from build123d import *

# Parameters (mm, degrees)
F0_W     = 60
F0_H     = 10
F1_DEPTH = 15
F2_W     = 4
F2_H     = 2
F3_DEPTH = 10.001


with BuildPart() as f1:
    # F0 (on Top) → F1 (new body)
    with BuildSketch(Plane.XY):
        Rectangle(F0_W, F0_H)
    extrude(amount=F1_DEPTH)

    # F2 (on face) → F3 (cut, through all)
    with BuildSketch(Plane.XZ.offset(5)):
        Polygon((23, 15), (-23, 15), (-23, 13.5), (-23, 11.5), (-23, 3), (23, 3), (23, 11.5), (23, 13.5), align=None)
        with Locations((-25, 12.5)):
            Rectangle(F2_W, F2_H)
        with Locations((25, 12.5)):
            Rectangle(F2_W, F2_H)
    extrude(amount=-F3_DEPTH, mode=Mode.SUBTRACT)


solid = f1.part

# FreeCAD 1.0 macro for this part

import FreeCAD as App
import Part
import Sketcher
from FreeCAD import Vector

doc = App.newDocument("Part")
body = doc.addObject("PartDesign::Body", "Body")

sketch1 = doc.addObject("Sketcher::SketchObject", "Sketch")
body.addObject(sketch1)
sketch1.AttachmentSupport = (doc.XY_Plane, [""])
sketch1.MapMode = "FlatFace"
sketch1.addGeometry([
    Part.LineSegment(Vector(-30, 5, 0), Vector(-30, -5, 0)),
    Part.LineSegment(Vector(-30, -5, 0), Vector(30, -5, 0)),
    Part.LineSegment(Vector(30, -5, 0), Vector(30, 5, 0)),
    Part.LineSegment(Vector(30, 5, 0), Vector(-30, 5, 0)),
], False)
sketch1.addConstraint([
    Sketcher.Constraint("Coincident", 0, 2, 1, 1),
    Sketcher.Constraint("Coincident", 1, 2, 2, 1),
    Sketcher.Constraint("Coincident", 2, 2, 3, 1),
    Sketcher.Constraint("Coincident", 3, 2, 0, 1),
    Sketcher.Constraint("Vertical", 0),
    Sketcher.Constraint("Horizontal", 1),
    Sketcher.Constraint("Vertical", 2),
    Sketcher.Constraint("Horizontal", 3),
    Sketcher.Constraint("Symmetric", 0, 2, 2, 2, -1, 1),
    Sketcher.Constraint("DistanceX", 1, 1, 1, 2, 60.0),
    Sketcher.Constraint("DistanceY", 0, 2, 0, 1, 10.0),
])
pad1 = doc.addObject("PartDesign::Pad", "Pad")
body.addObject(pad1)
pad1.Profile = sketch1
pad1.Length = 15

sketch2 = doc.addObject("Sketcher::SketchObject", "Sketch001")
body.addObject(sketch2)
sketch2.AttachmentSupport = (doc.XZ_Plane, [""])
sketch2.MapMode = "FlatFace"
sketch2.AttachmentOffset = App.Placement(Vector(0, 0, 5), App.Rotation())
sketch2.addGeometry([
    Part.LineSegment(Vector(23, 15, 0), Vector(-23, 15, 0)),
    Part.LineSegment(Vector(-23, 15, 0), Vector(-23, 13.5, 0)),
    Part.LineSegment(Vector(-23, 13.5, 0), Vector(-27, 13.5, 0)),
    Part.LineSegment(Vector(-27, 13.5, 0), Vector(-27, 11.5, 0)),
    Part.LineSegment(Vector(-27, 11.5, 0), Vector(-23, 11.5, 0)),
    Part.LineSegment(Vector(-23, 11.5, 0), Vector(-23, 3, 0)),
    Part.LineSegment(Vector(-23, 3, 0), Vector(23, 3, 0)),
    Part.LineSegment(Vector(23, 3, 0), Vector(23, 11.5, 0)),
    Part.LineSegment(Vector(23, 11.5, 0), Vector(27, 11.5, 0)),
    Part.LineSegment(Vector(27, 11.5, 0), Vector(27, 13.5, 0)),
    Part.LineSegment(Vector(27, 13.5, 0), Vector(23, 13.5, 0)),
    Part.LineSegment(Vector(23, 13.5, 0), Vector(23, 15, 0)),
], False)
sketch2.addConstraint([
    Sketcher.Constraint("Coincident", 0, 2, 1, 1),
    Sketcher.Constraint("Coincident", 1, 2, 2, 1),
    Sketcher.Constraint("Coincident", 2, 2, 3, 1),
    Sketcher.Constraint("Coincident", 3, 2, 4, 1),
    Sketcher.Constraint("Coincident", 4, 2, 5, 1),
    Sketcher.Constraint("Coincident", 5, 2, 6, 1),
    Sketcher.Constraint("Coincident", 6, 2, 7, 1),
    Sketcher.Constraint("Coincident", 7, 2, 8, 1),
    Sketcher.Constraint("Coincident", 8, 2, 9, 1),
    Sketcher.Constraint("Coincident", 9, 2, 10, 1),
    Sketcher.Constraint("Coincident", 10, 2, 11, 1),
    Sketcher.Constraint("Coincident", 11, 2, 0, 1),
    Sketcher.Constraint("Horizontal", 0),
    Sketcher.Constraint("Vertical", 1),
    Sketcher.Constraint("Horizontal", 2),
    Sketcher.Constraint("Vertical", 3),
    Sketcher.Constraint("Horizontal", 4),
    Sketcher.Constraint("Vertical", 5),
    Sketcher.Constraint("Horizontal", 6),
    Sketcher.Constraint("Vertical", 7),
    Sketcher.Constraint("Horizontal", 8),
    Sketcher.Constraint("Vertical", 9),
    Sketcher.Constraint("Horizontal", 10),
    Sketcher.Constraint("Vertical", 11),
    Sketcher.Constraint("Symmetric", 4, 2, 7, 2, -2),
    Sketcher.Constraint("Symmetric", 2, 2, 9, 2, -2),
    Sketcher.Constraint("Vertical", 1, 2, 4, 2),
    Sketcher.Constraint("Vertical", 7, 2, 10, 2),
    Sketcher.Constraint("DistanceX", 0, 2, 0, 1, 46.0),
    Sketcher.Constraint("DistanceX", 2, 2, 2, 1, 4.0),
    Sketcher.Constraint("DistanceY", 3, 2, 3, 1, 2.0),
    Sketcher.Constraint("DistanceY", 1, 2, 1, 1, 1.5),
    Sketcher.Constraint("DistanceY", 5, 2, 5, 1, 8.5),
    Sketcher.Constraint("DistanceY", -1, 1, 0, 2, 15.0),
])
pocket1 = doc.addObject("PartDesign::Pocket", "Pocket")
body.addObject(pocket1)
pocket1.Profile = sketch2
pocket1.Type = "ThroughAll"

doc.recompute()
